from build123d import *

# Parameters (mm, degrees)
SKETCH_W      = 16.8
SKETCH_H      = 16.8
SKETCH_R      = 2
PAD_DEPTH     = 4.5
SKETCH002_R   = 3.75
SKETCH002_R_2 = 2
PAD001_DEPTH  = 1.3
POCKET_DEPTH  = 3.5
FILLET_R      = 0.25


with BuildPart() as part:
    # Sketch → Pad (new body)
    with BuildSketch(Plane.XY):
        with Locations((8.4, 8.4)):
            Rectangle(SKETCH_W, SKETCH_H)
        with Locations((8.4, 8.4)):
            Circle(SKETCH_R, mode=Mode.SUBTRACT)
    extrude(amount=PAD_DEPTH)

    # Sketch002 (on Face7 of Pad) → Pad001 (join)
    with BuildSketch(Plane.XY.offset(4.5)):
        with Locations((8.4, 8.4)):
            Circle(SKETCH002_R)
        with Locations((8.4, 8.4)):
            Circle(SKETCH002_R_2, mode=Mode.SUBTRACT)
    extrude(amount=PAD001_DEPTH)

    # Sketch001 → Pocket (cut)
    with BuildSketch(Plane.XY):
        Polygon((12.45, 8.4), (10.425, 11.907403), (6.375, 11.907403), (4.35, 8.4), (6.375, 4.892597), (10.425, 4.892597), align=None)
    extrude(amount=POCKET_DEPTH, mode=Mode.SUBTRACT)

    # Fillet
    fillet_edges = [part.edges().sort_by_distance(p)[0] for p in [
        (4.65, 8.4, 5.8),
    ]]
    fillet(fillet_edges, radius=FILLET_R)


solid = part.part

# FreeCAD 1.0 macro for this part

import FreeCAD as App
import Part
import Sketcher
from FreeCAD import Vector
Q = App.Units.Quantity


def edges_at(feature, points):
    """Names of the edges that pass closest to the given points."""
    edges = feature.Shape.Edges
    near = lambda p: min(range(len(edges)), key=lambda i: edges[i].distToShape(Part.Vertex(*p))[0])
    return sorted({f"Edge{near(p) + 1}" for p in points})


def add_polygon(sketch, points):
    """Adds a closed chain of lines whose ends are joined by coincident constraints."""
    first, n = sketch.GeometryCount, len(points)
    for a, b in zip(points, points[1:] + points[:1]):
        sketch.addGeometry(Part.LineSegment(App.Vector(*a, 0), App.Vector(*b, 0)), False)
    for i in range(n):
        sketch.addConstraint(Sketcher.Constraint("Coincident", first + i, 2, first + (i + 1) % n, 1))

doc = App.newDocument("Part")
body = doc.addObject("PartDesign::Body", "Body")

sketch1 = body.newObject("Sketcher::SketchObject", "Sketch")
sketch1.AttachmentSupport = (doc.getObject("XY_Plane"), [""])
sketch1.MapMode = "FlatFace"
add_polygon(sketch1, [(0, 16.8), (0, 0), (16.8, 0), (16.8, 16.8)])
sketch1.addGeometry(Part.Circle(Vector(8.4, 8.4, 0), Vector(0, 0, 1), 2), False)
sketch1.addConstraint([
    Sketcher.Constraint("Vertical", 0),
    Sketcher.Constraint("Horizontal", 1),
    Sketcher.Constraint("Vertical", 2),
    Sketcher.Constraint("Horizontal", 3),
    Sketcher.Constraint("Coincident", 0, 2, -1, 1),
    Sketcher.Constraint("Equal", 3, 0),
    Sketcher.Constraint("Diameter", 4, 4.0),
    Sketcher.Constraint("DistanceX", 1, 1, 1, 2, 16.8),
    Sketcher.Constraint("DistanceX", -1, 1, 4, 3, 8.4),
    Sketcher.Constraint("DistanceY", -1, 1, 4, 3, 8.4),
])
pad1 = body.newObject("PartDesign::Pad", "Pad")
pad1.Profile = sketch1
pad1.Length = 4.5

sketch2 = body.newObject("Sketcher::SketchObject", "Sketch001")
sketch2.AttachmentSupport = (doc.getObject("XY_Plane"), [""])
sketch2.MapMode = "FlatFace"
sketch2.AttachmentOffset = App.Placement(Vector(0, 0, 4.5), App.Rotation())
sketch2.addGeometry([
    Part.Circle(Vector(8.4, 8.4, 0), Vector(0, 0, 1), 3.8),
    Part.Circle(Vector(8.4, 8.4, 0), Vector(0, 0, 1), 2),
], False)
sketch2.addConstraint([
    Sketcher.Constraint("Coincident", 1, 3, 0, 3),
    Sketcher.Constraint("Diameter", 1, 4.0),
    Sketcher.Constraint("Diameter", 0, 7.5),
    Sketcher.Constraint("DistanceX", -1, 1, 0, 3, 8.4),
    Sketcher.Constraint("DistanceY", -1, 1, 0, 3, 8.4),
])
pad2 = body.newObject("PartDesign::Pad", "Pad001")
pad2.Profile = sketch2
pad2.Length = 1.3

sketch3 = body.newObject("Sketcher::SketchObject", "Sketch002")
sketch3.AttachmentSupport = (doc.getObject("XY_Plane"), [""])
sketch3.MapMode = "FlatFace"
add_polygon(sketch3, [(12.4, 8.4), (10.4, 11.9), (6.4, 11.9), (4.3, 8.4), (6.4, 4.9), (10.4, 4.9)])
sketch3.addConstraint([
    Sketcher.Constraint("Horizontal", 1),
    Sketcher.Constraint("Horizontal", 4),
    Sketcher.Constraint("Parallel", 0, 3),
    Sketcher.Constraint("Parallel", 2, 5),
    Sketcher.Constraint("Horizontal", 2, 2, 5, 2),
    Sketcher.Constraint("Vertical", 1, 2, 3, 2),
    Sketcher.Constraint("Vertical", 0, 2, 4, 2),
    Sketcher.Constraint("Angle", 0, Q("119.999999 deg")),
    Sketcher.Constraint("DistanceX", 1, 2, 1, 1, 4.05),
    Sketcher.Constraint("DistanceY", -1, 1, 2, 2, 8.4),
    Sketcher.Constraint("DistanceX", 2, 2, 5, 2, 8.1),
    Sketcher.Constraint("DistanceX", -1, 1, 2, 2, 4.35),
])
pocket1 = body.newObject("PartDesign::Pocket", "Pocket")
pocket1.Profile = sketch3
pocket1.Length = 3.5
pocket1.Reversed = True
doc.recompute()

fillet = body.newObject("PartDesign::Fillet", "Fillet")
fillet.Base = (pocket1, edges_at(pocket1, [(4.65, 8.4, 5.8)]))
fillet.Radius = 0.25

doc.recompute()
